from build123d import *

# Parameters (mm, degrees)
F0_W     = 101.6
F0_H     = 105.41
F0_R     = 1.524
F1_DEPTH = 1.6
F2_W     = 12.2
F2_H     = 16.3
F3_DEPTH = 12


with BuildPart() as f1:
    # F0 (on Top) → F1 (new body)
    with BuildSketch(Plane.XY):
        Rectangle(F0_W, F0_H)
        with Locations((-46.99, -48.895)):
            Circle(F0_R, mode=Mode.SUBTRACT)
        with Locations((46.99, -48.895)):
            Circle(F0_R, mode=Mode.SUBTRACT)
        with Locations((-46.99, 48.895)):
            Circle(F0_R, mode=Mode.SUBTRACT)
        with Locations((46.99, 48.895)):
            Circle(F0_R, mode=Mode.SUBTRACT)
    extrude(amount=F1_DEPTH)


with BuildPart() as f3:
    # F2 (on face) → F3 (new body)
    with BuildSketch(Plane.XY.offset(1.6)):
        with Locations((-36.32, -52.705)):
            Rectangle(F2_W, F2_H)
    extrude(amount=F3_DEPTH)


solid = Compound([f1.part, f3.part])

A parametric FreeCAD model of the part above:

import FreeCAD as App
import Part
import Sketcher

V = App.Vector
Q = App.Units.Quantity

doc = App.newDocument("Part")
body = doc.addObject("PartDesign::Body", "Body")

sketch1 = doc.addObject("Sketcher::SketchObject", "Sketch")
body.addObject(sketch1)
sketch1.AttachmentSupport = (doc.XY_Plane, [""])
sketch1.MapMode = "FlatFace"
sketch1.addGeometry([
    Part.LineSegment(V(-50.8, 52.7, 0), V(-50.8, -52.7, 0)),
    Part.LineSegment(V(-50.8, -52.7, 0), V(50.8, -52.7, 0)),
    Part.LineSegment(V(50.8, -52.7, 0), V(50.8, 52.7, 0)),
    Part.LineSegment(V(50.8, 52.7, 0), V(-50.8, 52.7, 0)),
    Part.Circle(V(-47, -48.9, 0), V(0, 0, 1), 1.5),
    Part.Circle(V(47, -48.9, 0), V(0, 0, 1), 1.5),
    Part.Circle(V(-47, 48.9, 0), V(0, 0, 1), 1.5),
    Part.Circle(V(47, 48.9, 0), V(0, 0, 1), 1.5),
], False)
sketch1.addConstraint([
    Sketcher.Constraint("Coincident", 0, 2, 1, 1),
    Sketcher.Constraint("Coincident", 1, 2, 2, 1),
    Sketcher.Constraint("Coincident", 2, 2, 3, 1),
    Sketcher.Constraint("Coincident", 3, 2, 0, 1),
    Sketcher.Constraint("Vertical", 0),
    Sketcher.Constraint("Horizontal", 1),
    Sketcher.Constraint("Vertical", 2),
    Sketcher.Constraint("Horizontal", 3),
    Sketcher.Constraint("Equal", 4, 5),
    Sketcher.Constraint("Equal", 5, 6),
    Sketcher.Constraint("Equal", 6, 7),
    Sketcher.Constraint("Symmetric", 5, 3, 6, 3, -1, 1),
    Sketcher.Constraint("Symmetric", 4, 3, 7, 3, -1, 1),
    Sketcher.Constraint("Symmetric", 0, 2, 2, 2, -1, 1),
    Sketcher.Constraint("Symmetric", 4, 3, 5, 3, -2),
    Sketcher.Constraint("Diameter", 4, Q("3.048 mm")),
    Sketcher.Constraint("DistanceX", 1, 1, 1, 2, Q("101.6 mm")),
    Sketcher.Constraint("DistanceY", 0, 2, 0, 1, Q("105.41 mm")),
    Sketcher.Constraint("DistanceY", 0, 2, 6, 3, Q("101.6 mm")),
    Sketcher.Constraint("DistanceX", 4, 3, -1, 1, Q("46.99 mm")),
])
pad1 = doc.addObject("PartDesign::Pad", "Pad")
body.addObject(pad1)
pad1.Profile = sketch1
pad1.Length = 1.6
body2 = doc.addObject("PartDesign::Body", "Body001")

sketch2 = doc.addObject("Sketcher::SketchObject", "Sketch001")
body2.addObject(sketch2)
sketch2.AttachmentSupport = (doc.getObject("XY_Plane001"), [""])
sketch2.MapMode = "FlatFace"
sketch2.AttachmentOffset = App.Placement(V(0, 0, 1.6), App.Rotation())
sketch2.addGeometry([
    Part.LineSegment(V(-42, -45, 0), V(-42, -61, 0)),
    Part.LineSegment(V(-42, -61, 0), V(-30, -61, 0)),
    Part.LineSegment(V(-30, -61, 0), V(-30, -45, 0)),
    Part.LineSegment(V(-30, -45, 0), V(-42, -45, 0)),
], False)
sketch2.addConstraint([
    Sketcher.Constraint("Coincident", 0, 2, 1, 1),
    Sketcher.Constraint("Coincident", 1, 2, 2, 1),
    Sketcher.Constraint("Coincident", 2, 2, 3, 1),
    Sketcher.Constraint("Coincident", 3, 2, 0, 1),
    Sketcher.Constraint("Vertical", 0),
    Sketcher.Constraint("Horizontal", 1),
    Sketcher.Constraint("Vertical", 2),
    Sketcher.Constraint("Horizontal", 3),
    Sketcher.Constraint("DistanceX", 1, 1, 1, 2, Q("12.2 mm")),
    Sketcher.Constraint("DistanceY", 0, 2, 0, 1, Q("16.3 mm")),
    Sketcher.Constraint("DistanceX", 0, 2, -1, 1, Q("42.42 mm")),
    Sketcher.Constraint("DistanceY", 0, 2, -1, 1, Q("60.855 mm")),
])
pad2 = doc.addObject("PartDesign::Pad", "Pad001")
body2.addObject(pad2)
pad2.Profile = sketch2
pad2.Length = 12

doc.recompute()
